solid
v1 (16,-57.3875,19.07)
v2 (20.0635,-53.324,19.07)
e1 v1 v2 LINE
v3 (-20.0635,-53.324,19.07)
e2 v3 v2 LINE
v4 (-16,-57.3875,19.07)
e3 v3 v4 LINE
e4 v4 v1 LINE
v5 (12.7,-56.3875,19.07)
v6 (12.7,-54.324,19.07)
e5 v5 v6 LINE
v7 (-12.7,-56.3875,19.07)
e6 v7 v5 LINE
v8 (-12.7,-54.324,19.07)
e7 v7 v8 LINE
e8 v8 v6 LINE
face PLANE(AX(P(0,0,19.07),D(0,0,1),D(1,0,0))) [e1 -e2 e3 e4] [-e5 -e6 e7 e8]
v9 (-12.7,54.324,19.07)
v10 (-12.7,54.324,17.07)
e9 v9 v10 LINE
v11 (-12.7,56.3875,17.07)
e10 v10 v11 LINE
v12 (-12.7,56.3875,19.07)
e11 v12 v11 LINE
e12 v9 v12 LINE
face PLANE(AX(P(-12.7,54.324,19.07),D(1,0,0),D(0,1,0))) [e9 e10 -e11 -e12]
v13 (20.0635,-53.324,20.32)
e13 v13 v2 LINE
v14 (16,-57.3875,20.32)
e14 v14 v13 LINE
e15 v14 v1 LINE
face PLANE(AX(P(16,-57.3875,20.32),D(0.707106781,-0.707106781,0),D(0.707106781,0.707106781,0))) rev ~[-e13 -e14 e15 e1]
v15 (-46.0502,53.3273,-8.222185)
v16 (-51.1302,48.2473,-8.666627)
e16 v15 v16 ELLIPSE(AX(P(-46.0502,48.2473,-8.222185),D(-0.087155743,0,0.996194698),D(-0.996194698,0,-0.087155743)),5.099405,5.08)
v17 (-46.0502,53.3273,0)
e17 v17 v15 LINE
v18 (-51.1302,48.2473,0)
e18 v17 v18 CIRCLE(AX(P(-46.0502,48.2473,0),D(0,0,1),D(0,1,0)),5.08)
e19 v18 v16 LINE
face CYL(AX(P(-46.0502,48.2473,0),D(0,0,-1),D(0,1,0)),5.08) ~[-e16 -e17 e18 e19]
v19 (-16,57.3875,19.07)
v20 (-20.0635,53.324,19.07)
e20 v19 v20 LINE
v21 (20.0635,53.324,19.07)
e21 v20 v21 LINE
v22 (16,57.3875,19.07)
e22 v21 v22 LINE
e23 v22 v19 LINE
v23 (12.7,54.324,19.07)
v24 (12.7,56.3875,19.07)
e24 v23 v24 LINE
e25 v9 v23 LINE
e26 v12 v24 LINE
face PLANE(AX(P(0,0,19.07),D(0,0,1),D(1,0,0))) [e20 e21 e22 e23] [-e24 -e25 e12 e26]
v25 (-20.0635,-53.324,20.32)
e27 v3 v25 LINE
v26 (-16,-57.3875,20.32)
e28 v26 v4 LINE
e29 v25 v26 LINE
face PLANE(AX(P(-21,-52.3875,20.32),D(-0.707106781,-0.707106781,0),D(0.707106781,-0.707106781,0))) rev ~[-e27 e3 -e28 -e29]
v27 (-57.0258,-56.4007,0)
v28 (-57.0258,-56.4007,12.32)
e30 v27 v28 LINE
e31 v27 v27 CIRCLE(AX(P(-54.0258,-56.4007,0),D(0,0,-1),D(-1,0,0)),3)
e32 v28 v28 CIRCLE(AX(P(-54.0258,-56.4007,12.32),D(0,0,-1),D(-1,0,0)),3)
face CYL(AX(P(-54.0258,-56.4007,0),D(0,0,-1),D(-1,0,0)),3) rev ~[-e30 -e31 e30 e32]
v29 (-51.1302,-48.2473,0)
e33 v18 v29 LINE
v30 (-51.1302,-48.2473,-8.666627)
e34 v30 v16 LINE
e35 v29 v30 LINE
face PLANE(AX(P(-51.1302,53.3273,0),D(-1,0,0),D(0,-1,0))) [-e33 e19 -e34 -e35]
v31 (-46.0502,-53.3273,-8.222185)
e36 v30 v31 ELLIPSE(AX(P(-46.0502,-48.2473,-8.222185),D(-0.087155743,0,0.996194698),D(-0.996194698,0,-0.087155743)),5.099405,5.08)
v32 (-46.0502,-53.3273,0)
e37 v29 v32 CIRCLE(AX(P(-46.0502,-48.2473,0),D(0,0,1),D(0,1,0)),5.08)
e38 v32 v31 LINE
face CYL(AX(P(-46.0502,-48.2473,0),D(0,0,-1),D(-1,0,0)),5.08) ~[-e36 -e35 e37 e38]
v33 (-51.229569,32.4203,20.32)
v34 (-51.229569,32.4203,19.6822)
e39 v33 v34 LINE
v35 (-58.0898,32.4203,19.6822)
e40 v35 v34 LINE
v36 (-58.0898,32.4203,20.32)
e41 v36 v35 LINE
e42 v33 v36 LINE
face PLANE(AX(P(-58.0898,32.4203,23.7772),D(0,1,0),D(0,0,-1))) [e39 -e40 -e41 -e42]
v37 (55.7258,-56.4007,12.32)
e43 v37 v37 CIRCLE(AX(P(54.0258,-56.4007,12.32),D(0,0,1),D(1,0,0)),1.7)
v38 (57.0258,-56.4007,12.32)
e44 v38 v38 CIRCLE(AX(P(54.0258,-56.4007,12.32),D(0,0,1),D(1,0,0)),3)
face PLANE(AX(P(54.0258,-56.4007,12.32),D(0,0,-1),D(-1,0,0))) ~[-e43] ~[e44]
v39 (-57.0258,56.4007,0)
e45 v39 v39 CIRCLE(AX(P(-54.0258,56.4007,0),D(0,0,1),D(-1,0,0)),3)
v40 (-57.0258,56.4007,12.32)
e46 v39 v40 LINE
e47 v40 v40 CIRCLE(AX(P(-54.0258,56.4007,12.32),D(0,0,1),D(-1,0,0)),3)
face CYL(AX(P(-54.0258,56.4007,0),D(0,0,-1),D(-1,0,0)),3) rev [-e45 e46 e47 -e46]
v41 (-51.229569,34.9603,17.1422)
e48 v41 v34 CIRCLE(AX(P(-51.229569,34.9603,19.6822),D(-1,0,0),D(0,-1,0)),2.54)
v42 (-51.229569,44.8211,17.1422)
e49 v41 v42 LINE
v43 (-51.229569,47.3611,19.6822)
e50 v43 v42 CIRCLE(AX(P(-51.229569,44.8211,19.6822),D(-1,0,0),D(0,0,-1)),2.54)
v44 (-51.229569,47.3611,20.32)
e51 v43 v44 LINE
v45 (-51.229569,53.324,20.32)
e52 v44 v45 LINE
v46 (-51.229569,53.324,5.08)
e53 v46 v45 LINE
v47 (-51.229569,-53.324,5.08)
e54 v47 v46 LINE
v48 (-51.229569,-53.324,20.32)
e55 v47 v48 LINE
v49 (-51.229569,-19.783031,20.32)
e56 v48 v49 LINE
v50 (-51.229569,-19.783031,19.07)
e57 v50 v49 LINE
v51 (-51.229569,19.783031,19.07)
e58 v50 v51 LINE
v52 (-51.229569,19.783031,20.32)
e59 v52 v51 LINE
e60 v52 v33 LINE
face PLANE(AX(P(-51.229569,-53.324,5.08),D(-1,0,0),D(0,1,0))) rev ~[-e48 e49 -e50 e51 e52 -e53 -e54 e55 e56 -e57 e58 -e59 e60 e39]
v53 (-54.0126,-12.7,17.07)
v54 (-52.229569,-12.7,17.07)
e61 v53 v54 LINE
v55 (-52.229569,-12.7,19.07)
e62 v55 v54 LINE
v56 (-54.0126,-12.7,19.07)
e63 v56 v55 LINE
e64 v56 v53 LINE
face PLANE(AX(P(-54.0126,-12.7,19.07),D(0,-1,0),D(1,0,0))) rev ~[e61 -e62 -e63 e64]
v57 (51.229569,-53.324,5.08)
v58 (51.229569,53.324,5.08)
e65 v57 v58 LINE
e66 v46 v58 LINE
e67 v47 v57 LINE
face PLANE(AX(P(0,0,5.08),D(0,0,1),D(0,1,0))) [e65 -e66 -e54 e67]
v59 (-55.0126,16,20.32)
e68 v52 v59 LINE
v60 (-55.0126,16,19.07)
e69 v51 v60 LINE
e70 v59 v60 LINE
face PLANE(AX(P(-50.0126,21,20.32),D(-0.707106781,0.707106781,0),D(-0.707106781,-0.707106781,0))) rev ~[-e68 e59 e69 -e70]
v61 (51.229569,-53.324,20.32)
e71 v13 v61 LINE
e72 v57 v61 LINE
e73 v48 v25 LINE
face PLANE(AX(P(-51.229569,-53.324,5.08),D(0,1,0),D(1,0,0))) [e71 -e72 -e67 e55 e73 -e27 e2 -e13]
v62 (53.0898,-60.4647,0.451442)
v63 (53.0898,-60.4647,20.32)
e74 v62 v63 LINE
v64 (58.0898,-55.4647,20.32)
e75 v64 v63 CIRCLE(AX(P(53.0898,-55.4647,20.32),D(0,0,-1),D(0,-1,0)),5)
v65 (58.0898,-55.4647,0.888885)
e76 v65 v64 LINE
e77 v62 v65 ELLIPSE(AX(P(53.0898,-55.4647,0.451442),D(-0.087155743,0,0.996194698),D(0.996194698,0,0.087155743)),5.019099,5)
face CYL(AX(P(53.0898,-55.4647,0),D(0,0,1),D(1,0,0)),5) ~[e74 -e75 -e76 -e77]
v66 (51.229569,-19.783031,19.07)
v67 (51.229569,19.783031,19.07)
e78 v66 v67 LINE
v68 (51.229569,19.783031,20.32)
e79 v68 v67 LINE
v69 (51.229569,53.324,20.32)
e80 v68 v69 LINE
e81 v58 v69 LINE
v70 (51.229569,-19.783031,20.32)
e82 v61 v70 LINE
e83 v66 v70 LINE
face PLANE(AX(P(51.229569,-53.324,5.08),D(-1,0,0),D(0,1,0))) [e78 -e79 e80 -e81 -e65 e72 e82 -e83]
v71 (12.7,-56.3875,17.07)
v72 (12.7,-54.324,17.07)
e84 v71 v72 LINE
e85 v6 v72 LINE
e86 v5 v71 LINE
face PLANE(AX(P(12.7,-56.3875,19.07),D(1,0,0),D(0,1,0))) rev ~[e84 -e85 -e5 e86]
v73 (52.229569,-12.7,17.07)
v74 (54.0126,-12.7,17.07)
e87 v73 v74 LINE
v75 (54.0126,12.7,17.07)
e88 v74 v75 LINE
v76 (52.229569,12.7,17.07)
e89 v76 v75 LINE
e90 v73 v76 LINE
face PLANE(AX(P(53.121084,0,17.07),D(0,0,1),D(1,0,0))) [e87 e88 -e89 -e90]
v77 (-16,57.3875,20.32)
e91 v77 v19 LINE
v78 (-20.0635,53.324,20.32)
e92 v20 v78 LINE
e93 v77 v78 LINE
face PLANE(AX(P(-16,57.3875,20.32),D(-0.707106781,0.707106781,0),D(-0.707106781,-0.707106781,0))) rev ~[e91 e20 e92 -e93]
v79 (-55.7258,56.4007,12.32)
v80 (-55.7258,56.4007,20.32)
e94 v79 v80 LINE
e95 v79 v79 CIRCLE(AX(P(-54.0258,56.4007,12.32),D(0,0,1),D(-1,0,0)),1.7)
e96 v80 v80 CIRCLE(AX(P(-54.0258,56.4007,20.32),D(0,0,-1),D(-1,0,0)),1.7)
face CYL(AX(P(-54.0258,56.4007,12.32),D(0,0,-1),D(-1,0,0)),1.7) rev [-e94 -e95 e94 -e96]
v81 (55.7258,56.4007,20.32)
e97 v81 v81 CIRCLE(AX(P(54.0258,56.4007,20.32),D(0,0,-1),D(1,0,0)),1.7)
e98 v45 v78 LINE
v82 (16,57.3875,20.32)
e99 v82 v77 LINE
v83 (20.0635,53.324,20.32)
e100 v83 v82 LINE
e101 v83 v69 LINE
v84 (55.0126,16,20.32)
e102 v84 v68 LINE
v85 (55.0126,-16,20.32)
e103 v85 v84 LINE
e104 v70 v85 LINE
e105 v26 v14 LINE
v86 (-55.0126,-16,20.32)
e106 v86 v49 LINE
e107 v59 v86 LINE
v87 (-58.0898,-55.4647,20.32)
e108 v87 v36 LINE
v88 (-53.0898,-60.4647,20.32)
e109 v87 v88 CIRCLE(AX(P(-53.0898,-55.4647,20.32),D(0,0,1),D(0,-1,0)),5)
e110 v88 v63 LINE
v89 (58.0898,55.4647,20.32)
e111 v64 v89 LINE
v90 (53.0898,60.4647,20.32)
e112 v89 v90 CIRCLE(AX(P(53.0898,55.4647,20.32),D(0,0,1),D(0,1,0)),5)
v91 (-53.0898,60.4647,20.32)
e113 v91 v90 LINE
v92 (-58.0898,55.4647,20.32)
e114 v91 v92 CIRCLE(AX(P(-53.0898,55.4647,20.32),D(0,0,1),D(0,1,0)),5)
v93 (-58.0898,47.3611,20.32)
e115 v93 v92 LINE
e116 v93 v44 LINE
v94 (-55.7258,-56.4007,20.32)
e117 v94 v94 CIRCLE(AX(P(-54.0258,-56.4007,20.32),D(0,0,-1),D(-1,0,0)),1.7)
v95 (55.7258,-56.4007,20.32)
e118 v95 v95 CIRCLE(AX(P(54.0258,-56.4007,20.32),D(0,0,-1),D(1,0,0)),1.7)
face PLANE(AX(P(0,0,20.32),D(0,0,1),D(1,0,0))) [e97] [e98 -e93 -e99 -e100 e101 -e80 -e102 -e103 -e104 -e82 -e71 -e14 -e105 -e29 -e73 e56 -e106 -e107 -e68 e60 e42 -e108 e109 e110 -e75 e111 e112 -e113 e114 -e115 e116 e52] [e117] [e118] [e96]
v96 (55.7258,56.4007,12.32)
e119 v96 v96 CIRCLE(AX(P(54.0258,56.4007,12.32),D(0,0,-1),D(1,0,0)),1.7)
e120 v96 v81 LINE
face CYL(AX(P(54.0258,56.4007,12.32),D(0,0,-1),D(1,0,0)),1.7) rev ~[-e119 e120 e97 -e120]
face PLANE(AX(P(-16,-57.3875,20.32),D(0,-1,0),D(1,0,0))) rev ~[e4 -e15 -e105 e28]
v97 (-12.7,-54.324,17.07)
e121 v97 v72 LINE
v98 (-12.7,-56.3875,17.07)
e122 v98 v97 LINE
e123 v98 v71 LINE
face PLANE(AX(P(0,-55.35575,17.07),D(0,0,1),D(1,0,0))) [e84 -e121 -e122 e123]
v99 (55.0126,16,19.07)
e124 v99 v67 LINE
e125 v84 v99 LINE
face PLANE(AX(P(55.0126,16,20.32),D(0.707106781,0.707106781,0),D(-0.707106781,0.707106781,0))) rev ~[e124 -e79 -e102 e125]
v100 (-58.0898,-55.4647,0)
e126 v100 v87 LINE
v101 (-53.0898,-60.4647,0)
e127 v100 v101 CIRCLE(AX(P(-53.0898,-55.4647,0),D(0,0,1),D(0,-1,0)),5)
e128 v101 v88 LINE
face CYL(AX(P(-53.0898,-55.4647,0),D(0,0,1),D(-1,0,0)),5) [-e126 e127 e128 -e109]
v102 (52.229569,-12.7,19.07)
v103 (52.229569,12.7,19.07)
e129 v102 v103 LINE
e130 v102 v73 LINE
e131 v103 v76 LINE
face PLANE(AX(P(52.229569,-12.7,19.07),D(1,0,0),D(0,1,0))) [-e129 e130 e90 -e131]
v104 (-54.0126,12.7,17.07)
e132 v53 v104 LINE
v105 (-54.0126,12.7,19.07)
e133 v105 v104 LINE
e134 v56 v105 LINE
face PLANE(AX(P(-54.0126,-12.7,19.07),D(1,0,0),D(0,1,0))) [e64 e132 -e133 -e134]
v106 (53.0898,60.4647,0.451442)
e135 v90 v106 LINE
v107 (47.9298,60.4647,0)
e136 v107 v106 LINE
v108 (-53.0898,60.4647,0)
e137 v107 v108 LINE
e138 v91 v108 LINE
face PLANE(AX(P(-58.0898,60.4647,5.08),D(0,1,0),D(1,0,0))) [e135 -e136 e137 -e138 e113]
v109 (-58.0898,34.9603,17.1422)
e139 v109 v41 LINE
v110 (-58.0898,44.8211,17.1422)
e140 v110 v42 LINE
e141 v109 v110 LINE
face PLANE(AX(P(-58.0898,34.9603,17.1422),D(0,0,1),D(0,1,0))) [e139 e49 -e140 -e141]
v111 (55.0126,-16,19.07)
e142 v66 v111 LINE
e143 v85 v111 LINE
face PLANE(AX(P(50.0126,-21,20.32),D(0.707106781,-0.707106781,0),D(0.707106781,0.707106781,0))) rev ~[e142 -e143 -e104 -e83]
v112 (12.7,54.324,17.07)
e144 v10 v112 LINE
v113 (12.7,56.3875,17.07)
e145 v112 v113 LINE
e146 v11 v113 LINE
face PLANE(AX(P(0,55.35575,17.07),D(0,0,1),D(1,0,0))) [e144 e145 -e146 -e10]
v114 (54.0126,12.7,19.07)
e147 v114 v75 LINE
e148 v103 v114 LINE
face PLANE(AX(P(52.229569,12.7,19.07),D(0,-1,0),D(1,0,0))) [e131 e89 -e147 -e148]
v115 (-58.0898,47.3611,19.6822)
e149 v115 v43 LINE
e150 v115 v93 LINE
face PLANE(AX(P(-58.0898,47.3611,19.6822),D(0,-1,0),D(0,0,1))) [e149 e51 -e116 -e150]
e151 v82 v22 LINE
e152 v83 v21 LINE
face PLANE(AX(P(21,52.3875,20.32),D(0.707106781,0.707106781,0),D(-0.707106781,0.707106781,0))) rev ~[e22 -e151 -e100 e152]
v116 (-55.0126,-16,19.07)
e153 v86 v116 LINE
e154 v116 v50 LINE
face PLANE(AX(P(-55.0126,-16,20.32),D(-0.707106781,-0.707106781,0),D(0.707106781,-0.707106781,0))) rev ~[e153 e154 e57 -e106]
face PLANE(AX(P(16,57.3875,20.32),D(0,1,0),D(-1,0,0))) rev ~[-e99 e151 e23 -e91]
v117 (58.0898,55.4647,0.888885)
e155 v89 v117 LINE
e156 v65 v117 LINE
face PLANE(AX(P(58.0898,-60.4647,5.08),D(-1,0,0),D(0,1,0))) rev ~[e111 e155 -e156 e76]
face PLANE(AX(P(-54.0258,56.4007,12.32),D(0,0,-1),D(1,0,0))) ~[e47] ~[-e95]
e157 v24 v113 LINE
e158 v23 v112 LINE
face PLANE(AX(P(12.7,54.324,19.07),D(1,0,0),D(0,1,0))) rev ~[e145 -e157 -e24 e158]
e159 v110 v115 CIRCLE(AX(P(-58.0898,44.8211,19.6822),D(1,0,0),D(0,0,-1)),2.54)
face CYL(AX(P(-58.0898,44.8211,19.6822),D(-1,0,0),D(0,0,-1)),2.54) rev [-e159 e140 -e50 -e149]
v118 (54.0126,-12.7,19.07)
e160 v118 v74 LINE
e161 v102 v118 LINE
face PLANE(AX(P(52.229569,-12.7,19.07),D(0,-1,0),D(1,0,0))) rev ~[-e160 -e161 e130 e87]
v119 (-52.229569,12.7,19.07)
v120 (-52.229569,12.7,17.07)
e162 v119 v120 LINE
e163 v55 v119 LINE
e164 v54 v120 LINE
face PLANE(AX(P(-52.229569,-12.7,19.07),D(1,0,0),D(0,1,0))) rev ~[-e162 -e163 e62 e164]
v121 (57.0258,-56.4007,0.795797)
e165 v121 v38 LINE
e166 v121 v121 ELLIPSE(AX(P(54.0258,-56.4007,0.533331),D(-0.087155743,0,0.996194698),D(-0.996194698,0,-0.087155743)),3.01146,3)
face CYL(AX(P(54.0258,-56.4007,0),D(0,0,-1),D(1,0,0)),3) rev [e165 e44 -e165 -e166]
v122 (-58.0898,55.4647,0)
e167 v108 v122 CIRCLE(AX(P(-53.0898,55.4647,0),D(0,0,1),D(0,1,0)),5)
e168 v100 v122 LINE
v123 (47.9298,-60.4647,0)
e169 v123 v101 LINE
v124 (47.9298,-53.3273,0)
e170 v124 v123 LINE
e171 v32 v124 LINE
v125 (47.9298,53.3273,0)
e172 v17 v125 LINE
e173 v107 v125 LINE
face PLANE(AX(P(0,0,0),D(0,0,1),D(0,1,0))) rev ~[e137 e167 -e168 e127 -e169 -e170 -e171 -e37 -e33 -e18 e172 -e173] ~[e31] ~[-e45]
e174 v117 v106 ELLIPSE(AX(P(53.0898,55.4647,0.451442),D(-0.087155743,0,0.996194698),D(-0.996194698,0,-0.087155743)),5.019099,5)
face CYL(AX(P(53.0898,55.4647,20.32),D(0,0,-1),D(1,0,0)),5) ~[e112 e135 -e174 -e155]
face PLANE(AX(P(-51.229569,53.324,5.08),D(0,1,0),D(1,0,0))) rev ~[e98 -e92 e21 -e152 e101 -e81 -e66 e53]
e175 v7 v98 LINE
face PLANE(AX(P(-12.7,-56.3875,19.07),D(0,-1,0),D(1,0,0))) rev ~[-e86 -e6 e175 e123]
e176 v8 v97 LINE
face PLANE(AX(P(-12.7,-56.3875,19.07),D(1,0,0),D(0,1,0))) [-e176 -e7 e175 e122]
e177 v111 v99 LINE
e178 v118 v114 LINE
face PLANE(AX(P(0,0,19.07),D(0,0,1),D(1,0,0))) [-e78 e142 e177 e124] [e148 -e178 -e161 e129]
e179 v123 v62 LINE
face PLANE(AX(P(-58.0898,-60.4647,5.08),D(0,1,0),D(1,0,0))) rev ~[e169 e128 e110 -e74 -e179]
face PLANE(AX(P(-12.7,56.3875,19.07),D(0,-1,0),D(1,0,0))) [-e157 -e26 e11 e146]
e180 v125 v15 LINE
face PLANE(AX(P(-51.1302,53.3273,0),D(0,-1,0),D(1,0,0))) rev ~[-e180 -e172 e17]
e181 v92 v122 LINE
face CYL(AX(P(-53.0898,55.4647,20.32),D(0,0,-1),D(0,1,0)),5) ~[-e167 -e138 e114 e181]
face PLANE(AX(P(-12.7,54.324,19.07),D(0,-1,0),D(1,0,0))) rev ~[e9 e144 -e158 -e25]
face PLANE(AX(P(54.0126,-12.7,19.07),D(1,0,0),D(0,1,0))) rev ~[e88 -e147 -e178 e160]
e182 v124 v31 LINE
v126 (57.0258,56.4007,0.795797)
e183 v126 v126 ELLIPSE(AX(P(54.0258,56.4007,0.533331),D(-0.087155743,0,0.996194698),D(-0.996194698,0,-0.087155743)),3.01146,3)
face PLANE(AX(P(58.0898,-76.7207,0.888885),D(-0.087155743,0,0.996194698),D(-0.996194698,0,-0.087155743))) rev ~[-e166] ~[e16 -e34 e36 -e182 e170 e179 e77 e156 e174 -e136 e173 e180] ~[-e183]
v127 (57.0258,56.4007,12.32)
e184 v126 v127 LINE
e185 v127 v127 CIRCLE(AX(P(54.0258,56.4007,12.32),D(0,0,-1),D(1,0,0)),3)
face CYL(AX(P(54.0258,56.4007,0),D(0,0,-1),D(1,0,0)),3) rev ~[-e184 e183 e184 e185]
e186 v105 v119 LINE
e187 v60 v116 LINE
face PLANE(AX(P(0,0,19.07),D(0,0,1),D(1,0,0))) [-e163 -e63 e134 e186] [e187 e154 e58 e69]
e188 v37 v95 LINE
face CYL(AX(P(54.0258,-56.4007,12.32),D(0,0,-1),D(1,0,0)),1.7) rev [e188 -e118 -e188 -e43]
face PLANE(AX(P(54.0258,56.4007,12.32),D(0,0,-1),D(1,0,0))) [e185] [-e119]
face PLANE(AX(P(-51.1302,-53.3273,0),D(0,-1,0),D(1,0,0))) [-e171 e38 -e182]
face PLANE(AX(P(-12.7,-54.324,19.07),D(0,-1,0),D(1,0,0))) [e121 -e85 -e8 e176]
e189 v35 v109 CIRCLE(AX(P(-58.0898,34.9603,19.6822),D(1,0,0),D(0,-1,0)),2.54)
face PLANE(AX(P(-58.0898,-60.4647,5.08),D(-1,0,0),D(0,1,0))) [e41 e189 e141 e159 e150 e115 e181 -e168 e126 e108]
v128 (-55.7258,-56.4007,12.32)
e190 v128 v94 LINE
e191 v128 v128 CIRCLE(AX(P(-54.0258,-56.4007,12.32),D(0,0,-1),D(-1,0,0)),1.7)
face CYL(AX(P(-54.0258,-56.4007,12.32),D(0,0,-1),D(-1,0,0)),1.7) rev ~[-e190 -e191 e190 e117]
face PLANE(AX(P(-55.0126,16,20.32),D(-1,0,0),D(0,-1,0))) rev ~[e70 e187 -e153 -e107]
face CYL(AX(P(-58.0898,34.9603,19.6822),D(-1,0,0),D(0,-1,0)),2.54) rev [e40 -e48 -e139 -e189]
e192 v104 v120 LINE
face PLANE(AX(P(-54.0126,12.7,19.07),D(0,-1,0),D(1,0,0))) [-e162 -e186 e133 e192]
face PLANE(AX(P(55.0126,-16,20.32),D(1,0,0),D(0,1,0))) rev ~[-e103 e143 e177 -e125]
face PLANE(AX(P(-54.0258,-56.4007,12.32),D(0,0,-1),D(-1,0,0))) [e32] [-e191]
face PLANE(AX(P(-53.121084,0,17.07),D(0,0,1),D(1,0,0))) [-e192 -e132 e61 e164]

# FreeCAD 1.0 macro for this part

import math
import FreeCAD as App
import Part
import Sketcher
Q = App.Units.Quantity


def edges_at(feature, points):
    """Names of the edges that pass closest to the given points."""
    edges = feature.Shape.Edges
    near = lambda p: min(range(len(edges)), key=lambda i: edges[i].distToShape(Part.Vertex(*p))[0])
    return sorted({f"Edge{near(p) + 1}" for p in points})

doc = App.newDocument("Part")
body = doc.addObject("PartDesign::Body", "Body")

sketch1 = body.newObject("Sketcher::SketchObject", "Sketch")
sketch1.AttachmentSupport = (doc.getObject("XY_Plane"), [""])
sketch1.MapMode = "FlatFace"
sketch1.addGeometry([
    Part.LineSegment(App.Vector(-58.0898, -60.4647, 0), App.Vector(58.0898, -60.4647, 0)),
    Part.LineSegment(App.Vector(58.0898, -60.4647, 0), App.Vector(58.0898, 60.4647, 0)),
    Part.LineSegment(App.Vector(58.0898, 60.4647, 0), App.Vector(-58.0898, 60.4647, 0)),
    Part.LineSegment(App.Vector(-58.0898, 60.4647, 0), App.Vector(-58.0898, -60.4647, 0)),
], False)
sketch1.addConstraint([
    Sketcher.Constraint("Coincident", 0, 2, 1, 1),
    Sketcher.Constraint("Coincident", 1, 2, 2, 1),
    Sketcher.Constraint("Coincident", 2, 2, 3, 1),
    Sketcher.Constraint("Coincident", 3, 2, 0, 1),
    Sketcher.Constraint("Horizontal", 0),
    Sketcher.Constraint("Vertical", 1),
    Sketcher.Constraint("Horizontal", 2),
    Sketcher.Constraint("Vertical", 3),
    Sketcher.Constraint("Symmetric", 0, 2, 2, 2, -1, 1),
    Sketcher.Constraint("DistanceX", 0, 1, 0, 2, Q("4.574 in")),
    Sketcher.Constraint("DistanceY", 1, 1, 1, 2, Q("4.761 in")),
])
pad1 = body.newObject("PartDesign::Pad", "Pad")
pad1.Profile = sketch1
pad1.Length = Q("0.2 in")

sketch2 = body.newObject("Sketcher::SketchObject", "Sketch001")
sketch2.AttachmentSupport = (doc.getObject("XY_Plane"), [""])
sketch2.MapMode = "FlatFace"
sketch2.AttachmentOffset = App.Placement(App.Vector(0, 0, 0.2 * 25.4), App.Rotation())
sketch2.addGeometry([
    Part.LineSegment(App.Vector(-58.0898, 60.4647, 0), App.Vector(-58.0898, -60.4647, 0)),
    Part.LineSegment(App.Vector(-58.0898, -60.4647, 0), App.Vector(58.0898, -60.4647, 0)),
    Part.LineSegment(App.Vector(58.0898, -60.4647, 0), App.Vector(58.0898, 60.4647, 0)),
    Part.LineSegment(App.Vector(58.0898, 60.4647, 0), App.Vector(-58.0898, 60.4647, 0)),
    Part.LineSegment(App.Vector(51.229569, -53.324, 0), App.Vector(-51.229569, -53.324, 0)),
    Part.LineSegment(App.Vector(-51.229569, -53.324, 0), App.Vector(-51.229569, 53.324, 0)),
    Part.LineSegment(App.Vector(-51.229569, 53.324, 0), App.Vector(51.229569, 53.324, 0)),
    Part.LineSegment(App.Vector(51.229569, 53.324, 0), App.Vector(51.229569, -53.324, 0)),
], False)
sketch2.addConstraint([
    Sketcher.Constraint("Coincident", 0, 2, 1, 1),
    Sketcher.Constraint("Coincident", 1, 2, 2, 1),
    Sketcher.Constraint("Coincident", 2, 2, 3, 1),
    Sketcher.Constraint("Coincident", 3, 2, 0, 1),
    Sketcher.Constraint("Coincident", 4, 2, 5, 1),
    Sketcher.Constraint("Coincident", 5, 2, 6, 1),
    Sketcher.Constraint("Coincident", 6, 2, 7, 1),
    Sketcher.Constraint("Coincident", 7, 2, 4, 1),
    Sketcher.Constraint("Vertical", 0),
    Sketcher.Constraint("Horizontal", 1),
    Sketcher.Constraint("Vertical", 2),
    Sketcher.Constraint("Horizontal", 3),
    Sketcher.Constraint("Horizontal", 4),
    Sketcher.Constraint("Vertical", 5),
    Sketcher.Constraint("Horizontal", 6),
    Sketcher.Constraint("Vertical", 7),
    Sketcher.Constraint("Symmetric", 0, 2, 2, 2, -1, 1),
    Sketcher.Constraint("Symmetric", 4, 2, 6, 2, -1, 1),
    Sketcher.Constraint("DistanceX", 1, 1, 1, 2, Q("4.574 in")),
    Sketcher.Constraint("DistanceY", 0, 2, 0, 1, Q("4.761 in")),
    Sketcher.Constraint("DistanceY", 5, 1, 5, 2, 106.648),
    Sketcher.Constraint("DistanceX", 4, 2, 4, 1, 102.459137),
])
pad2 = body.newObject("PartDesign::Pad", "Pad001")
pad2.Profile = sketch2
pad2.Length = Q("0.6 in")

sketch3 = body.newObject("Sketcher::SketchObject", "Sketch002")
sketch3.AttachmentSupport = (doc.getObject("XY_Plane"), [""])
sketch3.MapMode = "FlatFace"
sketch3.AttachmentOffset = App.Placement(App.Vector(0, 0, 0.8 * 25.4), App.Rotation())
sketch3.addGeometry([
    Part.LineSegment(App.Vector(-50.0126, -52.3875, 0), App.Vector(-21, -52.3875, 0)),
    Part.LineSegment(App.Vector(-21, -52.3875, 0), App.Vector(-16, -57.3875, 0)),
    Part.LineSegment(App.Vector(-16, -57.3875, 0), App.Vector(16, -57.3875, 0)),
    Part.LineSegment(App.Vector(16, -57.3875, 0), App.Vector(21, -52.3875, 0)),
    Part.LineSegment(App.Vector(21, -52.3875, 0), App.Vector(50.0126, -52.3875, 0)),
    Part.LineSegment(App.Vector(50.0126, -52.3875, 0), App.Vector(50.0126, -21, 0)),
    Part.LineSegment(App.Vector(50.0126, -21, 0), App.Vector(55.0126, -16, 0)),
    Part.LineSegment(App.Vector(55.0126, -16, 0), App.Vector(55.0126, 16, 0)),
    Part.LineSegment(App.Vector(55.0126, 16, 0), App.Vector(50.0126, 21, 0)),
    Part.LineSegment(App.Vector(50.0126, 21, 0), App.Vector(50.0126, 52.3875, 0)),
    Part.LineSegment(App.Vector(50.0126, 52.3875, 0), App.Vector(21, 52.3875, 0)),
    Part.LineSegment(App.Vector(21, 52.3875, 0), App.Vector(16, 57.3875, 0)),
    Part.LineSegment(App.Vector(16, 57.3875, 0), App.Vector(-16, 57.3875, 0)),
    Part.LineSegment(App.Vector(-16, 57.3875, 0), App.Vector(-21, 52.3875, 0)),
    Part.LineSegment(App.Vector(-21, 52.3875, 0), App.Vector(-50.0126, 52.3875, 0)),
    Part.LineSegment(App.Vector(-50.0126, 52.3875, 0), App.Vector(-50.0126, 21, 0)),
    Part.LineSegment(App.Vector(-50.0126, 21, 0), App.Vector(-55.0126, 16, 0)),
    Part.LineSegment(App.Vector(-55.0126, 16, 0), App.Vector(-55.0126, -16, 0)),
    Part.LineSegment(App.Vector(-55.0126, -16, 0), App.Vector(-50.0126, -21, 0)),
    Part.LineSegment(App.Vector(-50.0126, -21, 0), App.Vector(-50.0126, -52.3875, 0)),
], False)
sketch3.addConstraint([
    Sketcher.Constraint("Coincident", 0, 2, 1, 1),
    Sketcher.Constraint("Coincident", 1, 2, 2, 1),
    Sketcher.Constraint("Coincident", 2, 2, 3, 1),
    Sketcher.Constraint("Coincident", 3, 2, 4, 1),
    Sketcher.Constraint("Coincident", 4, 2, 5, 1),
    Sketcher.Constraint("Coincident", 5, 2, 6, 1),
    Sketcher.Constraint("Coincident", 6, 2, 7, 1),
    Sketcher.Constraint("Coincident", 7, 2, 8, 1),
    Sketcher.Constraint("Coincident", 8, 2, 9, 1),
    Sketcher.Constraint("Coincident", 9, 2, 10, 1),
    Sketcher.Constraint("Coincident", 10, 2, 11, 1),
    Sketcher.Constraint("Coincident", 11, 2, 12, 1),
    Sketcher.Constraint("Coincident", 12, 2, 13, 1),
    Sketcher.Constraint("Coincident", 13, 2, 14, 1),
    Sketcher.Constraint("Coincident", 14, 2, 15, 1),
    Sketcher.Constraint("Coincident", 15, 2, 16, 1),
    Sketcher.Constraint("Coincident", 16, 2, 17, 1),
    Sketcher.Constraint("Coincident", 17, 2, 18, 1),
    Sketcher.Constraint("Coincident", 18, 2, 19, 1),
    Sketcher.Constraint("Coincident", 19, 2, 0, 1),
    Sketcher.Constraint("Horizontal", 0),
    Sketcher.Constraint("Horizontal", 2),
    Sketcher.Constraint("Horizontal", 4),
    Sketcher.Constraint("Vertical", 5),
    Sketcher.Constraint("Vertical", 7),
    Sketcher.Constraint("Vertical", 9),
    Sketcher.Constraint("Horizontal", 10),
    Sketcher.Constraint("Horizontal", 12),
    Sketcher.Constraint("Horizontal", 14),
    Sketcher.Constraint("Vertical", 15),
    Sketcher.Constraint("Vertical", 17),
    Sketcher.Constraint("Vertical", 19),
    Sketcher.Constraint("Symmetric", 0, 2, 10, 2, -1, 1),
    Sketcher.Constraint("Symmetric", 1, 2, 11, 2, -1, 1),
    Sketcher.Constraint("Symmetric", 3, 2, 13, 2, -1, 1),
    Sketcher.Constraint("Symmetric", 5, 2, 15, 2, -1, 1),
    Sketcher.Constraint("Symmetric", 6, 2, 16, 2, -1, 1),
    Sketcher.Constraint("Symmetric", 8, 2, 18, 2, -1, 1),
    Sketcher.Constraint("Symmetric", 0, 2, 3, 2, -2),
    Sketcher.Constraint("Symmetric", 8, 2, 15, 2, -2),
    Sketcher.Constraint("Perpendicular", 1, 3),
    Sketcher.Constraint("Parallel", 3, 6),
    Sketcher.Constraint("Perpendicular", 6, 8),
    Sketcher.Constraint("Perpendicular", 11, 13),
    Sketcher.Constraint("Perpendicular", 16, 18),
    Sketcher.Constraint("Horizontal", 7, 2, 16, 2),
    Sketcher.Constraint("Equal", 12, 7),
    Sketcher.Constraint("Equal", 3, 6),
    Sketcher.Constraint("DistanceY", 0, 2, -1, 1, Q("2.0625 in")),
    Sketcher.Constraint("DistanceX", -1, 1, 4, 2, Q("1.969 in")),
    Sketcher.Constraint("DistanceX", 0, 1, 0, 2, 29.0126),
    Sketcher.Constraint("DistanceX", 2, 1, 2, 2, 32.0),
])
pocket1 = body.newObject("PartDesign::Pocket", "Pocket")
pocket1.Profile = sketch3
pocket1.Length = 1.25

sketch4 = body.newObject("Sketcher::SketchObject", "Sketch003")
sketch4.AttachmentSupport = (doc.getObject("XY_Plane"), [""])
sketch4.MapMode = "FlatFace"
sketch4.AttachmentOffset = App.Placement(App.Vector(0, 0, 19.07), App.Rotation())
sketch4.addGeometry([
    Part.LineSegment(App.Vector(-12.7, 56.3875, 0), App.Vector(-12.7, 54.324, 0)),
    Part.LineSegment(App.Vector(-12.7, 54.324, 0), App.Vector(12.7, 54.324, 0)),
    Part.LineSegment(App.Vector(12.7, 54.324, 0), App.Vector(12.7, 56.3875, 0)),
    Part.LineSegment(App.Vector(12.7, 56.3875, 0), App.Vector(-12.7, 56.3875, 0)),
    Part.LineSegment(App.Vector(-12.7, -54.324, 0), App.Vector(-12.7, -56.3875, 0)),
    Part.LineSegment(App.Vector(-12.7, -56.3875, 0), App.Vector(12.7, -56.3875, 0)),
    Part.LineSegment(App.Vector(12.7, -56.3875, 0), App.Vector(12.7, -54.324, 0)),
    Part.LineSegment(App.Vector(12.7, -54.324, 0), App.Vector(-12.7, -54.324, 0)),
    Part.LineSegment(App.Vector(-54.0126, 12.7, 0), App.Vector(-54.0126, -12.7, 0)),
    Part.LineSegment(App.Vector(-54.0126, -12.7, 0), App.Vector(-52.229569, -12.7, 0)),
    Part.LineSegment(App.Vector(-52.229569, -12.7, 0), App.Vector(-52.229569, 12.7, 0)),
    Part.LineSegment(App.Vector(-52.229569, 12.7, 0), App.Vector(-54.0126, 12.7, 0)),
    Part.LineSegment(App.Vector(52.229569, 12.7, 0), App.Vector(52.229569, -12.7, 0)),
    Part.LineSegment(App.Vector(52.229569, -12.7, 0), App.Vector(54.0126, -12.7, 0)),
    Part.LineSegment(App.Vector(54.0126, -12.7, 0), App.Vector(54.0126, 12.7, 0)),
    Part.LineSegment(App.Vector(54.0126, 12.7, 0), App.Vector(52.229569, 12.7, 0)),
], False)
sketch4.addConstraint([
    Sketcher.Constraint("Coincident", 0, 2, 1, 1),
    Sketcher.Constraint("Coincident", 1, 2, 2, 1),
    Sketcher.Constraint("Coincident", 2, 2, 3, 1),
    Sketcher.Constraint("Coincident", 3, 2, 0, 1),
    Sketcher.Constraint("Coincident", 4, 2, 5, 1),
    Sketcher.Constraint("Coincident", 5, 2, 6, 1),
    Sketcher.Constraint("Coincident", 6, 2, 7, 1),
    Sketcher.Constraint("Coincident", 7, 2, 4, 1),
    Sketcher.Constraint("Coincident", 8, 2, 9, 1),
    Sketcher.Constraint("Coincident", 9, 2, 10, 1),
    Sketcher.Constraint("Coincident", 10, 2, 11, 1),
    Sketcher.Constraint("Coincident", 11, 2, 8, 1),
    Sketcher.Constraint("Coincident", 12, 2, 13, 1),
    Sketcher.Constraint("Coincident", 13, 2, 14, 1),
    Sketcher.Constraint("Coincident", 14, 2, 15, 1),
    Sketcher.Constraint("Coincident", 15, 2, 12, 1),
    Sketcher.Constraint("Vertical", 0),
    Sketcher.Constraint("Horizontal", 1),
    Sketcher.Constraint("Vertical", 2),
    Sketcher.Constraint("Horizontal", 3),
    Sketcher.Constraint("Vertical", 4),
    Sketcher.Constraint("Horizontal", 5),
    Sketcher.Constraint("Vertical", 6),
    Sketcher.Constraint("Horizontal", 7),
    Sketcher.Constraint("Vertical", 8),
    Sketcher.Constraint("Horizontal", 9),
    Sketcher.Constraint("Vertical", 10),
    Sketcher.Constraint("Horizontal", 11),
    Sketcher.Constraint("Vertical", 12),
    Sketcher.Constraint("Horizontal", 13),
    Sketcher.Constraint("Vertical", 14),
    Sketcher.Constraint("Horizontal", 15),
    Sketcher.Constraint("Symmetric", 2, 2, 4, 2, -1, 1),
    Sketcher.Constraint("Symmetric", 0, 2, 6, 2, -1, 1),
    Sketcher.Constraint("Symmetric", 10, 2, 12, 2, -1, 1),
    Sketcher.Constraint("Symmetric", 8, 2, 14, 2, -1, 1),
    Sketcher.Constraint("Horizontal", 9, 2, 12, 2),
    Sketcher.Constraint("Vertical", 3, 2, 4, 2),
    Sketcher.Constraint("Equal", 7, 8),
    Sketcher.Constraint("DistanceX", 1, 1, 1, 2, Q("1 in")),
    Sketcher.Constraint("DistanceY", 0, 2, 0, 1, 2.0635),
    Sketcher.Constraint("DistanceX", 9, 1, 9, 2, 1.783031),
    Sketcher.Constraint("DistanceY", -1, 1, 0, 2, 54.324),
    Sketcher.Constraint("DistanceX", 8, 2, -1, 1, 54.0126),
])
pocket2 = body.newObject("PartDesign::Pocket", "Pocket001")
pocket2.Profile = sketch4
pocket2.Length = 2

sketch5 = body.newObject("Sketcher::SketchObject", "Sketch004")
sketch5.AttachmentSupport = (doc.getObject("YZ_Plane"), [""])
sketch5.MapMode = "FlatFace"
sketch5.AttachmentOffset = App.Placement(App.Vector(0, 0, -2.287 * 25.4), App.Rotation())
sketch5.addGeometry([
    Part.LineSegment(App.Vector(34.9603, 26.3172, 0), App.Vector(44.8211, 26.3172, 0)),
    Part.ArcOfCircle(Part.Circle(App.Vector(44.8211, 23.7772, 0), App.Vector(0, 0, 1), 2.54), math.radians(0), math.radians(90)),
    Part.LineSegment(App.Vector(47.3611, 23.7772, 0), App.Vector(47.3611, 19.6822, 0)),
    Part.ArcOfCircle(Part.Circle(App.Vector(44.8211, 19.6822, 0), App.Vector(0, 0, 1), 2.54), math.radians(-90), math.radians(0)),
    Part.LineSegment(App.Vector(44.8211, 17.1422, 0), App.Vector(34.9603, 17.1422, 0)),
    Part.ArcOfCircle(Part.Circle(App.Vector(34.9603, 19.6822, 0), App.Vector(0, 0, 1), 2.54), math.radians(-180), math.radians(-90)),
    Part.LineSegment(App.Vector(32.4203, 19.6822, 0), App.Vector(32.4203, 23.7772, 0)),
    Part.ArcOfCircle(Part.Circle(App.Vector(34.9603, 23.7772, 0), App.Vector(0, 0, 1), 2.54), math.radians(90), math.radians(180)),
], False)
sketch5.addConstraint([
    Sketcher.Constraint("Tangent", 0, 2, 1, 2),
    Sketcher.Constraint("Tangent", 1, 1, 2, 1),
    Sketcher.Constraint("Tangent", 2, 2, 3, 2),
    Sketcher.Constraint("Tangent", 3, 1, 4, 1),
    Sketcher.Constraint("Tangent", 4, 2, 5, 2),
    Sketcher.Constraint("Tangent", 5, 1, 6, 1),
    Sketcher.Constraint("Tangent", 6, 2, 7, 2),
    Sketcher.Constraint("Tangent", 7, 1, 0, 1),
    Sketcher.Constraint("Horizontal", 0),
    Sketcher.Constraint("Vertical", 2),
    Sketcher.Constraint("Horizontal", 4),
    Sketcher.Constraint("Vertical", 6),
    Sketcher.Constraint("Equal", 1, 3),
    Sketcher.Constraint("Equal", 3, 5),
    Sketcher.Constraint("Equal", 5, 7),
    Sketcher.Constraint("Radius", 1, Q("0.1 in")),
    Sketcher.Constraint("DistanceX", 0, 1, 0, 2, 9.8608),
    Sketcher.Constraint("DistanceY", 2, 2, 2, 1, 4.095),
    Sketcher.Constraint("DistanceX", -1, 1, 1, 3, 44.8211),
    Sketcher.Constraint("DistanceY", -1, 1, 1, 3, 23.7772),
])
pocket3 = body.newObject("PartDesign::Pocket", "Pocket002")
pocket3.Profile = sketch5
pocket3.Length = Q("0.39 in")
pocket3.Reversed = True

sketch6 = body.newObject("Sketcher::SketchObject", "Sketch005")
sketch6.AttachmentSupport = (doc.getObject("XY_Plane"), [""])
sketch6.MapMode = "FlatFace"
sketch6.addGeometry(Part.Circle(App.Vector(-54.0258, -56.4007, 0), App.Vector(0, 0, 1), 3), False)
sketch6.addConstraint([
    Sketcher.Constraint("Diameter", 0, 6.0),
    Sketcher.Constraint("DistanceX", 0, 3, -1, 1, Q("2.127 in")),
    Sketcher.Constraint("DistanceY", 0, 3, -1, 1, Q("2.2205 in")),
])
pocket4 = body.newObject("PartDesign::Pocket", "Pocket003")
pocket4.Profile = sketch6
pocket4.Length = 12.32
pocket4.Reversed = True

sketch7 = body.newObject("Sketcher::SketchObject", "Sketch006")
sketch7.AttachmentSupport = (doc.getObject("XY_Plane"), [""])
sketch7.MapMode = "FlatFace"
sketch7.AttachmentOffset = App.Placement(App.Vector(0, 0, 12.32), App.Rotation())
sketch7.addGeometry(Part.Circle(App.Vector(-54.0258, -56.4007, 0), App.Vector(0, 0, 1), 1.7), False)
sketch7.addConstraint([
    Sketcher.Constraint("Diameter", 0, 3.4),
    Sketcher.Constraint("DistanceX", 0, 3, -1, 1, Q("2.127 in")),
    Sketcher.Constraint("DistanceY", 0, 3, -1, 1, Q("2.2205 in")),
])
pocket5 = body.newObject("PartDesign::Pocket", "Pocket004")
pocket5.Profile = sketch7
pocket5.Length = 12.32
pocket5.Reversed = True
doc.recompute()

mirrored = body.newObject("PartDesign::Mirrored", "Mirrored")
mirrored.Originals = [pocket4, pocket5]
mirrored.MirrorPlane = (doc.getObject("XZ_Plane"), [""])
body.Tip = mirrored
doc.recompute()

mirrored2 = body.newObject("PartDesign::Mirrored", "Mirrored001")
mirrored2.Originals = [pocket4, pocket5]
mirrored2.MirrorPlane = (doc.getObject("YZ_Plane"), [""])
body.Tip = mirrored2

sketch8 = body.newObject("Sketcher::SketchObject", "Sketch007")
sketch8.AttachmentSupport = (doc.getObject("XY_Plane"), [""])
sketch8.MapMode = "FlatFace"
sketch8.addGeometry(Part.Circle(App.Vector(54.0258, 56.4007, 0), App.Vector(0, 0, 1), 3), False)
sketch8.addConstraint([
    Sketcher.Constraint("Diameter", 0, 6.0),
    Sketcher.Constraint("DistanceX", -1, 1, 0, 3, Q("2.127 in")),
    Sketcher.Constraint("DistanceY", -1, 1, 0, 3, Q("2.2205 in")),
])
pocket6 = body.newObject("PartDesign::Pocket", "Pocket005")
pocket6.Profile = sketch8
pocket6.Length = 12.32
pocket6.Reversed = True

sketch9 = body.newObject("Sketcher::SketchObject", "Sketch008")
sketch9.AttachmentSupport = (doc.getObject("XY_Plane"), [""])
sketch9.MapMode = "FlatFace"
sketch9.AttachmentOffset = App.Placement(App.Vector(0, 0, 12.32), App.Rotation())
sketch9.addGeometry(Part.Circle(App.Vector(54.0258, 56.4007, 0), App.Vector(0, 0, 1), 1.7), False)
sketch9.addConstraint([
    Sketcher.Constraint("Diameter", 0, 3.4),
    Sketcher.Constraint("DistanceX", -1, 1, 0, 3, Q("2.127 in")),
    Sketcher.Constraint("DistanceY", -1, 1, 0, 3, Q("2.2205 in")),
])
pocket7 = body.newObject("PartDesign::Pocket", "Pocket006")
pocket7.Profile = sketch9
pocket7.Length = 12.32
pocket7.Reversed = True

sketch10 = body.newObject("Sketcher::SketchObject", "Sketch009")
sketch10.AttachmentSupport = (doc.getObject("XY_Plane"), [""])
sketch10.MapMode = "FlatFace"
sketch10.addGeometry([
    Part.LineSegment(App.Vector(-51.1302, -53.3273, 0), App.Vector(-51.1302, 53.3273, 0)),
    Part.LineSegment(App.Vector(-51.1302, 53.3273, 0), App.Vector(58.0898, 53.3273, 0)),
    Part.LineSegment(App.Vector(58.0898, 53.3273, 0), App.Vector(58.0898, -53.3273, 0)),
    Part.LineSegment(App.Vector(58.0898, -53.3273, 0), App.Vector(-51.1302, -53.3273, 0)),
], False)
sketch10.addConstraint([
    Sketcher.Constraint("Coincident", 0, 2, 1, 1),
    Sketcher.Constraint("Coincident", 1, 2, 2, 1),
    Sketcher.Constraint("Coincident", 2, 2, 3, 1),
    Sketcher.Constraint("Coincident", 3, 2, 0, 1),
    Sketcher.Constraint("Vertical", 0),
    Sketcher.Constraint("Horizontal", 1),
    Sketcher.Constraint("Vertical", 2),
    Sketcher.Constraint("Horizontal", 3),
    Sketcher.Constraint("DistanceX", 1, 1, 1, 2, Q("4.3 in")),
    Sketcher.Constraint("DistanceY", 0, 1, 0, 2, Q("4.199 in")),
    Sketcher.Constraint("DistanceX", 0, 2, -1, 1, Q("2.013 in")),
    Sketcher.Constraint("DistanceY", -1, 1, 0, 2, Q("2.0995 in")),
])
pad3 = body.newObject("PartDesign::Pad", "Pad002")
pad3.Profile = sketch10
pad3.Length = Q("0.376 in")
pad3.Reversed = True
doc.recompute()

fillet = body.newObject("PartDesign::Fillet", "Fillet")
fillet.Base = (pad3, edges_at(pad3, [(-51.13, -53.327, -4.775), (-51.13, 53.327, -4.775)]))
fillet.Radius = Q("0.2 in")
doc.recompute()

fillet2 = body.newObject("PartDesign::Fillet", "Fillet001")
fillet2.Base = (fillet, edges_at(fillet, [
    (58.09, 60.465, 10.16),
    (58.09, -60.465, 10.16),
    (-58.09, -60.465, 10.16),
    (-58.09, 60.465, 10.16),
]))
fillet2.Radius = 5

sketch11 = body.newObject("Sketcher::SketchObject", "Sketch010")
sketch11.AttachmentSupport = (doc.getObject("XZ_Plane"), [""])
sketch11.MapMode = "FlatFace"
sketch11.AttachmentOffset = App.Placement(App.Vector(0, 0, -2.0995 * 25.4), App.Rotation())
sketch11.addGeometry([
    Part.LineSegment(App.Vector(-51.1302, -8.666627, 0), App.Vector(58.0898, 0.888885, 0)),
    Part.LineSegment(App.Vector(58.0898, 0.888885, 0), App.Vector(58.0898, -9.5504, 0)),
    Part.LineSegment(App.Vector(58.0898, -9.5504, 0), App.Vector(-51.1302, -9.5504, 0)),
    Part.LineSegment(App.Vector(-51.1302, -9.5504, 0), App.Vector(-51.1302, -8.666627, 0)),
], False)
sketch11.addConstraint([
    Sketcher.Constraint("Coincident", 0, 2, 1, 1),
    Sketcher.Constraint("Coincident", 1, 2, 2, 1),
    Sketcher.Constraint("Coincident", 2, 2, 3, 1),
    Sketcher.Constraint("Coincident", 3, 2, 0, 1),
    Sketcher.Constraint("Vertical", 1),
    Sketcher.Constraint("Horizontal", 2),
    Sketcher.Constraint("Vertical", 3),
    Sketcher.Constraint("DistanceX", 2, 2, 2, 1, Q("4.3 in")),
    Sketcher.Constraint("Angle", 0, Q("5 deg")),
    Sketcher.Constraint("DistanceX", -1, 1, 0, 2, Q("2.287 in")),
    Sketcher.Constraint("DistanceY", 1, 2, -1, 1, Q("0.376 in")),
    Sketcher.Constraint("DistanceY", 1, 2, 1, 1, 10.439285),
])
pocket8 = body.newObject("PartDesign::Pocket", "Pocket007")
pocket8.Profile = sketch11
pocket8.Type = "ThroughAll"
pocket8.Midplane = True

doc.recompute()
